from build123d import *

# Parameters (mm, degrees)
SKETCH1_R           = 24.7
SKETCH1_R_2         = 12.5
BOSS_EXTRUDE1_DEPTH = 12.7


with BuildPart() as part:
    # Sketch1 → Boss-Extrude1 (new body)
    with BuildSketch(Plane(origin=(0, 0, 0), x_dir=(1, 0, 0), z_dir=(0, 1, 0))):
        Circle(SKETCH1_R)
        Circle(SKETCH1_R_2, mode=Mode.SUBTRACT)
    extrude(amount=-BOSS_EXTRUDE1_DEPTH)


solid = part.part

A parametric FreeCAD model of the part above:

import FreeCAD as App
import Part
import Sketcher

doc = App.newDocument("Part")
body = doc.addObject("PartDesign::Body", "Body")

# Sketch on XZ plane
sketch1 = body.newObject("Sketcher::SketchObject", "Sketch")
sketch1.AttachmentSupport = (doc.getObject("XZ_Plane"), [""])
sketch1.MapMode = "FlatFace"
sketch1.addGeometry([
    Part.Circle(App.Vector(0, 0, 0), App.Vector(0, 0, 1), 25),
    Part.Circle(App.Vector(0, 0, 0), App.Vector(0, 0, 1), 12),
], False)
sketch1.addConstraint([
    Sketcher.Constraint("Coincident", 0, 3, -1, 1),
    Sketcher.Constraint("Coincident", 1, 3, -1, 1),
    Sketcher.Constraint("Diameter", 1, 25.0),
    Sketcher.Constraint("Diameter", 0, 49.4),
])
pad1 = body.newObject("PartDesign::Pad", "Pad")
pad1.Profile = sketch1
pad1.Length = 12.7

doc.recompute()
